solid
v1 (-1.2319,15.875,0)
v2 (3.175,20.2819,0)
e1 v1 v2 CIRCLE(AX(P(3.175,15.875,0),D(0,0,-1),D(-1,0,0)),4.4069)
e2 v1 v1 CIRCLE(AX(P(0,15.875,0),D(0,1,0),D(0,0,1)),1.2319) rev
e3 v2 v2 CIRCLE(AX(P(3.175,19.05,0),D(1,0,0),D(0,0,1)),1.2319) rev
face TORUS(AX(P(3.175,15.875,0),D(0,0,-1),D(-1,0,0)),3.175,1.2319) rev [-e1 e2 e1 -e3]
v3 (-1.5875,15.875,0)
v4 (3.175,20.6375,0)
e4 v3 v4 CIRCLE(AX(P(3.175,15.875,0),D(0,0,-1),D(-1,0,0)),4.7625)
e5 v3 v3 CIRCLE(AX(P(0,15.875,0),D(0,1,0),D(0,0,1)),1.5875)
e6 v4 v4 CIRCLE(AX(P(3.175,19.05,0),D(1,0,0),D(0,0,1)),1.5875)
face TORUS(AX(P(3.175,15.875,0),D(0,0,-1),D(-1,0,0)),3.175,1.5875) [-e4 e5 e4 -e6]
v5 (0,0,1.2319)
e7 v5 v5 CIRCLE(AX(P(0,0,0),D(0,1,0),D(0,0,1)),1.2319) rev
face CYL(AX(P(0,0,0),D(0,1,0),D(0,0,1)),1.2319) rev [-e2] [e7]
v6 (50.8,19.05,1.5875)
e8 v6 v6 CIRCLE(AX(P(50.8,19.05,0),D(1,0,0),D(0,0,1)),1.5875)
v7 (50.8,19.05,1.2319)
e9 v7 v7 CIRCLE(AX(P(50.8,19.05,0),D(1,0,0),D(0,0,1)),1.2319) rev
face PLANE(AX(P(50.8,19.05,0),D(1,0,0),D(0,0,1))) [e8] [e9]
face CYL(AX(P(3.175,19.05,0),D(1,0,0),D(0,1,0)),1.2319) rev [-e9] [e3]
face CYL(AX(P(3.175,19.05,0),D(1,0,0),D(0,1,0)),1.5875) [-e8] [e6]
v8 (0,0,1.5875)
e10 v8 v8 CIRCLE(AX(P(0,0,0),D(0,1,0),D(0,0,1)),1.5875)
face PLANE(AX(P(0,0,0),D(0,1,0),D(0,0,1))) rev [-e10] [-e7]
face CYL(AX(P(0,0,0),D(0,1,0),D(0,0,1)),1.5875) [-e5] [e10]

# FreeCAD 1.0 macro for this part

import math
import FreeCAD as App
import Part
import Sketcher
from FreeCAD import Vector
Q = App.Units.Quantity

doc = App.newDocument("Part")
params = doc.addObject("Spreadsheet::Sheet", "Params")
for row, (alias, value) in enumerate([
    ("sketch1_diameter", "0.125 in"),
    ("sketch1_diameter2", "0.097 in"),
    ("sketch2_radius", "0.125 in"),
    ("sketch2_height", "0.625 in"),
], start=1):
    params.set(f"A{row}", alias)
    params.set(f"B{row}", "=" + value)
    params.setAlias(f"B{row}", alias)

body = doc.addObject("PartDesign::Body", "Body")

# Sketch on XZ plane
sketch1 = body.newObject("Sketcher::SketchObject", "Sketch")
sketch1.AttachmentSupport = (doc.getObject("XZ_Plane"), [""])
sketch1.MapMode = "FlatFace"
sketch1.addGeometry(Part.Circle(Vector(0, 0, 0), Vector(0, 0, 1), 1.5875), False)
sketch1.addGeometry(Part.Circle(Vector(0, 0, 0), Vector(0, 0, 1), 1.2319), False)
sketch1.addConstraint(Sketcher.Constraint("Coincident", 0, 3, -1, 1))
sketch1.addConstraint(Sketcher.Constraint("Coincident", 1, 3, -1, 1))
sketch1.addConstraint(Sketcher.Constraint("Diameter", 0, Q("0.125 in")))
sketch1.addConstraint(Sketcher.Constraint("Diameter", 1, Q("0.097 in")))
sketch1.setExpression("Constraints[2]", "Params.sketch1_diameter")
sketch1.setExpression("Constraints[3]", "Params.sketch1_diameter2")

# Sketch on XY plane
sketch2 = body.newObject("Sketcher::SketchObject", "Sketch001")
sketch2.AttachmentSupport = (doc.getObject("XY_Plane"), [""])
sketch2.MapMode = "FlatFace"
sketch2.addGeometry(Part.LineSegment(Vector(0, 0, 0), Vector(0, 15.875, 0)), False)
sketch2.addGeometry(Part.ArcOfCircle(Part.Circle(Vector(3.175, 15.875, 0), Vector(0, 0, 1), 3.175), math.radians(90), math.radians(180)), False)
sketch2.addGeometry(Part.LineSegment(Vector(3.175, 19.05, 0), Vector(50.8, 19.05, 0)), False)
sketch2.addConstraint(Sketcher.Constraint("Tangent", 0, 2, 1, 2))
sketch2.addConstraint(Sketcher.Constraint("Tangent", 1, 1, 2, 1))
sketch2.addConstraint(Sketcher.Constraint("Vertical", 0))
sketch2.addConstraint(Sketcher.Constraint("Horizontal", 2))
sketch2.addConstraint(Sketcher.Constraint("Coincident", 0, 1, -1, 1))
sketch2.addConstraint(Sketcher.Constraint("DistanceX", -1, 1, 2, 2, Q("2 in")))
sketch2.addConstraint(Sketcher.Constraint("Radius", 1, Q("0.125 in")))
sketch2.addConstraint(Sketcher.Constraint("DistanceY", 0, 1, 0, 2, Q("0.625 in")))
sketch2.setExpression("Constraints[6]", "Params.sketch2_radius")
sketch2.setExpression("Constraints[7]", "Params.sketch2_height")
doc.recompute()

additivepipe = body.newObject("PartDesign::AdditivePipe", "AdditivePipe")
additivepipe.Profile = sketch1
additivepipe.Spine = (sketch2, ["Edge1", "Edge2", "Edge3"])

doc.recompute()
